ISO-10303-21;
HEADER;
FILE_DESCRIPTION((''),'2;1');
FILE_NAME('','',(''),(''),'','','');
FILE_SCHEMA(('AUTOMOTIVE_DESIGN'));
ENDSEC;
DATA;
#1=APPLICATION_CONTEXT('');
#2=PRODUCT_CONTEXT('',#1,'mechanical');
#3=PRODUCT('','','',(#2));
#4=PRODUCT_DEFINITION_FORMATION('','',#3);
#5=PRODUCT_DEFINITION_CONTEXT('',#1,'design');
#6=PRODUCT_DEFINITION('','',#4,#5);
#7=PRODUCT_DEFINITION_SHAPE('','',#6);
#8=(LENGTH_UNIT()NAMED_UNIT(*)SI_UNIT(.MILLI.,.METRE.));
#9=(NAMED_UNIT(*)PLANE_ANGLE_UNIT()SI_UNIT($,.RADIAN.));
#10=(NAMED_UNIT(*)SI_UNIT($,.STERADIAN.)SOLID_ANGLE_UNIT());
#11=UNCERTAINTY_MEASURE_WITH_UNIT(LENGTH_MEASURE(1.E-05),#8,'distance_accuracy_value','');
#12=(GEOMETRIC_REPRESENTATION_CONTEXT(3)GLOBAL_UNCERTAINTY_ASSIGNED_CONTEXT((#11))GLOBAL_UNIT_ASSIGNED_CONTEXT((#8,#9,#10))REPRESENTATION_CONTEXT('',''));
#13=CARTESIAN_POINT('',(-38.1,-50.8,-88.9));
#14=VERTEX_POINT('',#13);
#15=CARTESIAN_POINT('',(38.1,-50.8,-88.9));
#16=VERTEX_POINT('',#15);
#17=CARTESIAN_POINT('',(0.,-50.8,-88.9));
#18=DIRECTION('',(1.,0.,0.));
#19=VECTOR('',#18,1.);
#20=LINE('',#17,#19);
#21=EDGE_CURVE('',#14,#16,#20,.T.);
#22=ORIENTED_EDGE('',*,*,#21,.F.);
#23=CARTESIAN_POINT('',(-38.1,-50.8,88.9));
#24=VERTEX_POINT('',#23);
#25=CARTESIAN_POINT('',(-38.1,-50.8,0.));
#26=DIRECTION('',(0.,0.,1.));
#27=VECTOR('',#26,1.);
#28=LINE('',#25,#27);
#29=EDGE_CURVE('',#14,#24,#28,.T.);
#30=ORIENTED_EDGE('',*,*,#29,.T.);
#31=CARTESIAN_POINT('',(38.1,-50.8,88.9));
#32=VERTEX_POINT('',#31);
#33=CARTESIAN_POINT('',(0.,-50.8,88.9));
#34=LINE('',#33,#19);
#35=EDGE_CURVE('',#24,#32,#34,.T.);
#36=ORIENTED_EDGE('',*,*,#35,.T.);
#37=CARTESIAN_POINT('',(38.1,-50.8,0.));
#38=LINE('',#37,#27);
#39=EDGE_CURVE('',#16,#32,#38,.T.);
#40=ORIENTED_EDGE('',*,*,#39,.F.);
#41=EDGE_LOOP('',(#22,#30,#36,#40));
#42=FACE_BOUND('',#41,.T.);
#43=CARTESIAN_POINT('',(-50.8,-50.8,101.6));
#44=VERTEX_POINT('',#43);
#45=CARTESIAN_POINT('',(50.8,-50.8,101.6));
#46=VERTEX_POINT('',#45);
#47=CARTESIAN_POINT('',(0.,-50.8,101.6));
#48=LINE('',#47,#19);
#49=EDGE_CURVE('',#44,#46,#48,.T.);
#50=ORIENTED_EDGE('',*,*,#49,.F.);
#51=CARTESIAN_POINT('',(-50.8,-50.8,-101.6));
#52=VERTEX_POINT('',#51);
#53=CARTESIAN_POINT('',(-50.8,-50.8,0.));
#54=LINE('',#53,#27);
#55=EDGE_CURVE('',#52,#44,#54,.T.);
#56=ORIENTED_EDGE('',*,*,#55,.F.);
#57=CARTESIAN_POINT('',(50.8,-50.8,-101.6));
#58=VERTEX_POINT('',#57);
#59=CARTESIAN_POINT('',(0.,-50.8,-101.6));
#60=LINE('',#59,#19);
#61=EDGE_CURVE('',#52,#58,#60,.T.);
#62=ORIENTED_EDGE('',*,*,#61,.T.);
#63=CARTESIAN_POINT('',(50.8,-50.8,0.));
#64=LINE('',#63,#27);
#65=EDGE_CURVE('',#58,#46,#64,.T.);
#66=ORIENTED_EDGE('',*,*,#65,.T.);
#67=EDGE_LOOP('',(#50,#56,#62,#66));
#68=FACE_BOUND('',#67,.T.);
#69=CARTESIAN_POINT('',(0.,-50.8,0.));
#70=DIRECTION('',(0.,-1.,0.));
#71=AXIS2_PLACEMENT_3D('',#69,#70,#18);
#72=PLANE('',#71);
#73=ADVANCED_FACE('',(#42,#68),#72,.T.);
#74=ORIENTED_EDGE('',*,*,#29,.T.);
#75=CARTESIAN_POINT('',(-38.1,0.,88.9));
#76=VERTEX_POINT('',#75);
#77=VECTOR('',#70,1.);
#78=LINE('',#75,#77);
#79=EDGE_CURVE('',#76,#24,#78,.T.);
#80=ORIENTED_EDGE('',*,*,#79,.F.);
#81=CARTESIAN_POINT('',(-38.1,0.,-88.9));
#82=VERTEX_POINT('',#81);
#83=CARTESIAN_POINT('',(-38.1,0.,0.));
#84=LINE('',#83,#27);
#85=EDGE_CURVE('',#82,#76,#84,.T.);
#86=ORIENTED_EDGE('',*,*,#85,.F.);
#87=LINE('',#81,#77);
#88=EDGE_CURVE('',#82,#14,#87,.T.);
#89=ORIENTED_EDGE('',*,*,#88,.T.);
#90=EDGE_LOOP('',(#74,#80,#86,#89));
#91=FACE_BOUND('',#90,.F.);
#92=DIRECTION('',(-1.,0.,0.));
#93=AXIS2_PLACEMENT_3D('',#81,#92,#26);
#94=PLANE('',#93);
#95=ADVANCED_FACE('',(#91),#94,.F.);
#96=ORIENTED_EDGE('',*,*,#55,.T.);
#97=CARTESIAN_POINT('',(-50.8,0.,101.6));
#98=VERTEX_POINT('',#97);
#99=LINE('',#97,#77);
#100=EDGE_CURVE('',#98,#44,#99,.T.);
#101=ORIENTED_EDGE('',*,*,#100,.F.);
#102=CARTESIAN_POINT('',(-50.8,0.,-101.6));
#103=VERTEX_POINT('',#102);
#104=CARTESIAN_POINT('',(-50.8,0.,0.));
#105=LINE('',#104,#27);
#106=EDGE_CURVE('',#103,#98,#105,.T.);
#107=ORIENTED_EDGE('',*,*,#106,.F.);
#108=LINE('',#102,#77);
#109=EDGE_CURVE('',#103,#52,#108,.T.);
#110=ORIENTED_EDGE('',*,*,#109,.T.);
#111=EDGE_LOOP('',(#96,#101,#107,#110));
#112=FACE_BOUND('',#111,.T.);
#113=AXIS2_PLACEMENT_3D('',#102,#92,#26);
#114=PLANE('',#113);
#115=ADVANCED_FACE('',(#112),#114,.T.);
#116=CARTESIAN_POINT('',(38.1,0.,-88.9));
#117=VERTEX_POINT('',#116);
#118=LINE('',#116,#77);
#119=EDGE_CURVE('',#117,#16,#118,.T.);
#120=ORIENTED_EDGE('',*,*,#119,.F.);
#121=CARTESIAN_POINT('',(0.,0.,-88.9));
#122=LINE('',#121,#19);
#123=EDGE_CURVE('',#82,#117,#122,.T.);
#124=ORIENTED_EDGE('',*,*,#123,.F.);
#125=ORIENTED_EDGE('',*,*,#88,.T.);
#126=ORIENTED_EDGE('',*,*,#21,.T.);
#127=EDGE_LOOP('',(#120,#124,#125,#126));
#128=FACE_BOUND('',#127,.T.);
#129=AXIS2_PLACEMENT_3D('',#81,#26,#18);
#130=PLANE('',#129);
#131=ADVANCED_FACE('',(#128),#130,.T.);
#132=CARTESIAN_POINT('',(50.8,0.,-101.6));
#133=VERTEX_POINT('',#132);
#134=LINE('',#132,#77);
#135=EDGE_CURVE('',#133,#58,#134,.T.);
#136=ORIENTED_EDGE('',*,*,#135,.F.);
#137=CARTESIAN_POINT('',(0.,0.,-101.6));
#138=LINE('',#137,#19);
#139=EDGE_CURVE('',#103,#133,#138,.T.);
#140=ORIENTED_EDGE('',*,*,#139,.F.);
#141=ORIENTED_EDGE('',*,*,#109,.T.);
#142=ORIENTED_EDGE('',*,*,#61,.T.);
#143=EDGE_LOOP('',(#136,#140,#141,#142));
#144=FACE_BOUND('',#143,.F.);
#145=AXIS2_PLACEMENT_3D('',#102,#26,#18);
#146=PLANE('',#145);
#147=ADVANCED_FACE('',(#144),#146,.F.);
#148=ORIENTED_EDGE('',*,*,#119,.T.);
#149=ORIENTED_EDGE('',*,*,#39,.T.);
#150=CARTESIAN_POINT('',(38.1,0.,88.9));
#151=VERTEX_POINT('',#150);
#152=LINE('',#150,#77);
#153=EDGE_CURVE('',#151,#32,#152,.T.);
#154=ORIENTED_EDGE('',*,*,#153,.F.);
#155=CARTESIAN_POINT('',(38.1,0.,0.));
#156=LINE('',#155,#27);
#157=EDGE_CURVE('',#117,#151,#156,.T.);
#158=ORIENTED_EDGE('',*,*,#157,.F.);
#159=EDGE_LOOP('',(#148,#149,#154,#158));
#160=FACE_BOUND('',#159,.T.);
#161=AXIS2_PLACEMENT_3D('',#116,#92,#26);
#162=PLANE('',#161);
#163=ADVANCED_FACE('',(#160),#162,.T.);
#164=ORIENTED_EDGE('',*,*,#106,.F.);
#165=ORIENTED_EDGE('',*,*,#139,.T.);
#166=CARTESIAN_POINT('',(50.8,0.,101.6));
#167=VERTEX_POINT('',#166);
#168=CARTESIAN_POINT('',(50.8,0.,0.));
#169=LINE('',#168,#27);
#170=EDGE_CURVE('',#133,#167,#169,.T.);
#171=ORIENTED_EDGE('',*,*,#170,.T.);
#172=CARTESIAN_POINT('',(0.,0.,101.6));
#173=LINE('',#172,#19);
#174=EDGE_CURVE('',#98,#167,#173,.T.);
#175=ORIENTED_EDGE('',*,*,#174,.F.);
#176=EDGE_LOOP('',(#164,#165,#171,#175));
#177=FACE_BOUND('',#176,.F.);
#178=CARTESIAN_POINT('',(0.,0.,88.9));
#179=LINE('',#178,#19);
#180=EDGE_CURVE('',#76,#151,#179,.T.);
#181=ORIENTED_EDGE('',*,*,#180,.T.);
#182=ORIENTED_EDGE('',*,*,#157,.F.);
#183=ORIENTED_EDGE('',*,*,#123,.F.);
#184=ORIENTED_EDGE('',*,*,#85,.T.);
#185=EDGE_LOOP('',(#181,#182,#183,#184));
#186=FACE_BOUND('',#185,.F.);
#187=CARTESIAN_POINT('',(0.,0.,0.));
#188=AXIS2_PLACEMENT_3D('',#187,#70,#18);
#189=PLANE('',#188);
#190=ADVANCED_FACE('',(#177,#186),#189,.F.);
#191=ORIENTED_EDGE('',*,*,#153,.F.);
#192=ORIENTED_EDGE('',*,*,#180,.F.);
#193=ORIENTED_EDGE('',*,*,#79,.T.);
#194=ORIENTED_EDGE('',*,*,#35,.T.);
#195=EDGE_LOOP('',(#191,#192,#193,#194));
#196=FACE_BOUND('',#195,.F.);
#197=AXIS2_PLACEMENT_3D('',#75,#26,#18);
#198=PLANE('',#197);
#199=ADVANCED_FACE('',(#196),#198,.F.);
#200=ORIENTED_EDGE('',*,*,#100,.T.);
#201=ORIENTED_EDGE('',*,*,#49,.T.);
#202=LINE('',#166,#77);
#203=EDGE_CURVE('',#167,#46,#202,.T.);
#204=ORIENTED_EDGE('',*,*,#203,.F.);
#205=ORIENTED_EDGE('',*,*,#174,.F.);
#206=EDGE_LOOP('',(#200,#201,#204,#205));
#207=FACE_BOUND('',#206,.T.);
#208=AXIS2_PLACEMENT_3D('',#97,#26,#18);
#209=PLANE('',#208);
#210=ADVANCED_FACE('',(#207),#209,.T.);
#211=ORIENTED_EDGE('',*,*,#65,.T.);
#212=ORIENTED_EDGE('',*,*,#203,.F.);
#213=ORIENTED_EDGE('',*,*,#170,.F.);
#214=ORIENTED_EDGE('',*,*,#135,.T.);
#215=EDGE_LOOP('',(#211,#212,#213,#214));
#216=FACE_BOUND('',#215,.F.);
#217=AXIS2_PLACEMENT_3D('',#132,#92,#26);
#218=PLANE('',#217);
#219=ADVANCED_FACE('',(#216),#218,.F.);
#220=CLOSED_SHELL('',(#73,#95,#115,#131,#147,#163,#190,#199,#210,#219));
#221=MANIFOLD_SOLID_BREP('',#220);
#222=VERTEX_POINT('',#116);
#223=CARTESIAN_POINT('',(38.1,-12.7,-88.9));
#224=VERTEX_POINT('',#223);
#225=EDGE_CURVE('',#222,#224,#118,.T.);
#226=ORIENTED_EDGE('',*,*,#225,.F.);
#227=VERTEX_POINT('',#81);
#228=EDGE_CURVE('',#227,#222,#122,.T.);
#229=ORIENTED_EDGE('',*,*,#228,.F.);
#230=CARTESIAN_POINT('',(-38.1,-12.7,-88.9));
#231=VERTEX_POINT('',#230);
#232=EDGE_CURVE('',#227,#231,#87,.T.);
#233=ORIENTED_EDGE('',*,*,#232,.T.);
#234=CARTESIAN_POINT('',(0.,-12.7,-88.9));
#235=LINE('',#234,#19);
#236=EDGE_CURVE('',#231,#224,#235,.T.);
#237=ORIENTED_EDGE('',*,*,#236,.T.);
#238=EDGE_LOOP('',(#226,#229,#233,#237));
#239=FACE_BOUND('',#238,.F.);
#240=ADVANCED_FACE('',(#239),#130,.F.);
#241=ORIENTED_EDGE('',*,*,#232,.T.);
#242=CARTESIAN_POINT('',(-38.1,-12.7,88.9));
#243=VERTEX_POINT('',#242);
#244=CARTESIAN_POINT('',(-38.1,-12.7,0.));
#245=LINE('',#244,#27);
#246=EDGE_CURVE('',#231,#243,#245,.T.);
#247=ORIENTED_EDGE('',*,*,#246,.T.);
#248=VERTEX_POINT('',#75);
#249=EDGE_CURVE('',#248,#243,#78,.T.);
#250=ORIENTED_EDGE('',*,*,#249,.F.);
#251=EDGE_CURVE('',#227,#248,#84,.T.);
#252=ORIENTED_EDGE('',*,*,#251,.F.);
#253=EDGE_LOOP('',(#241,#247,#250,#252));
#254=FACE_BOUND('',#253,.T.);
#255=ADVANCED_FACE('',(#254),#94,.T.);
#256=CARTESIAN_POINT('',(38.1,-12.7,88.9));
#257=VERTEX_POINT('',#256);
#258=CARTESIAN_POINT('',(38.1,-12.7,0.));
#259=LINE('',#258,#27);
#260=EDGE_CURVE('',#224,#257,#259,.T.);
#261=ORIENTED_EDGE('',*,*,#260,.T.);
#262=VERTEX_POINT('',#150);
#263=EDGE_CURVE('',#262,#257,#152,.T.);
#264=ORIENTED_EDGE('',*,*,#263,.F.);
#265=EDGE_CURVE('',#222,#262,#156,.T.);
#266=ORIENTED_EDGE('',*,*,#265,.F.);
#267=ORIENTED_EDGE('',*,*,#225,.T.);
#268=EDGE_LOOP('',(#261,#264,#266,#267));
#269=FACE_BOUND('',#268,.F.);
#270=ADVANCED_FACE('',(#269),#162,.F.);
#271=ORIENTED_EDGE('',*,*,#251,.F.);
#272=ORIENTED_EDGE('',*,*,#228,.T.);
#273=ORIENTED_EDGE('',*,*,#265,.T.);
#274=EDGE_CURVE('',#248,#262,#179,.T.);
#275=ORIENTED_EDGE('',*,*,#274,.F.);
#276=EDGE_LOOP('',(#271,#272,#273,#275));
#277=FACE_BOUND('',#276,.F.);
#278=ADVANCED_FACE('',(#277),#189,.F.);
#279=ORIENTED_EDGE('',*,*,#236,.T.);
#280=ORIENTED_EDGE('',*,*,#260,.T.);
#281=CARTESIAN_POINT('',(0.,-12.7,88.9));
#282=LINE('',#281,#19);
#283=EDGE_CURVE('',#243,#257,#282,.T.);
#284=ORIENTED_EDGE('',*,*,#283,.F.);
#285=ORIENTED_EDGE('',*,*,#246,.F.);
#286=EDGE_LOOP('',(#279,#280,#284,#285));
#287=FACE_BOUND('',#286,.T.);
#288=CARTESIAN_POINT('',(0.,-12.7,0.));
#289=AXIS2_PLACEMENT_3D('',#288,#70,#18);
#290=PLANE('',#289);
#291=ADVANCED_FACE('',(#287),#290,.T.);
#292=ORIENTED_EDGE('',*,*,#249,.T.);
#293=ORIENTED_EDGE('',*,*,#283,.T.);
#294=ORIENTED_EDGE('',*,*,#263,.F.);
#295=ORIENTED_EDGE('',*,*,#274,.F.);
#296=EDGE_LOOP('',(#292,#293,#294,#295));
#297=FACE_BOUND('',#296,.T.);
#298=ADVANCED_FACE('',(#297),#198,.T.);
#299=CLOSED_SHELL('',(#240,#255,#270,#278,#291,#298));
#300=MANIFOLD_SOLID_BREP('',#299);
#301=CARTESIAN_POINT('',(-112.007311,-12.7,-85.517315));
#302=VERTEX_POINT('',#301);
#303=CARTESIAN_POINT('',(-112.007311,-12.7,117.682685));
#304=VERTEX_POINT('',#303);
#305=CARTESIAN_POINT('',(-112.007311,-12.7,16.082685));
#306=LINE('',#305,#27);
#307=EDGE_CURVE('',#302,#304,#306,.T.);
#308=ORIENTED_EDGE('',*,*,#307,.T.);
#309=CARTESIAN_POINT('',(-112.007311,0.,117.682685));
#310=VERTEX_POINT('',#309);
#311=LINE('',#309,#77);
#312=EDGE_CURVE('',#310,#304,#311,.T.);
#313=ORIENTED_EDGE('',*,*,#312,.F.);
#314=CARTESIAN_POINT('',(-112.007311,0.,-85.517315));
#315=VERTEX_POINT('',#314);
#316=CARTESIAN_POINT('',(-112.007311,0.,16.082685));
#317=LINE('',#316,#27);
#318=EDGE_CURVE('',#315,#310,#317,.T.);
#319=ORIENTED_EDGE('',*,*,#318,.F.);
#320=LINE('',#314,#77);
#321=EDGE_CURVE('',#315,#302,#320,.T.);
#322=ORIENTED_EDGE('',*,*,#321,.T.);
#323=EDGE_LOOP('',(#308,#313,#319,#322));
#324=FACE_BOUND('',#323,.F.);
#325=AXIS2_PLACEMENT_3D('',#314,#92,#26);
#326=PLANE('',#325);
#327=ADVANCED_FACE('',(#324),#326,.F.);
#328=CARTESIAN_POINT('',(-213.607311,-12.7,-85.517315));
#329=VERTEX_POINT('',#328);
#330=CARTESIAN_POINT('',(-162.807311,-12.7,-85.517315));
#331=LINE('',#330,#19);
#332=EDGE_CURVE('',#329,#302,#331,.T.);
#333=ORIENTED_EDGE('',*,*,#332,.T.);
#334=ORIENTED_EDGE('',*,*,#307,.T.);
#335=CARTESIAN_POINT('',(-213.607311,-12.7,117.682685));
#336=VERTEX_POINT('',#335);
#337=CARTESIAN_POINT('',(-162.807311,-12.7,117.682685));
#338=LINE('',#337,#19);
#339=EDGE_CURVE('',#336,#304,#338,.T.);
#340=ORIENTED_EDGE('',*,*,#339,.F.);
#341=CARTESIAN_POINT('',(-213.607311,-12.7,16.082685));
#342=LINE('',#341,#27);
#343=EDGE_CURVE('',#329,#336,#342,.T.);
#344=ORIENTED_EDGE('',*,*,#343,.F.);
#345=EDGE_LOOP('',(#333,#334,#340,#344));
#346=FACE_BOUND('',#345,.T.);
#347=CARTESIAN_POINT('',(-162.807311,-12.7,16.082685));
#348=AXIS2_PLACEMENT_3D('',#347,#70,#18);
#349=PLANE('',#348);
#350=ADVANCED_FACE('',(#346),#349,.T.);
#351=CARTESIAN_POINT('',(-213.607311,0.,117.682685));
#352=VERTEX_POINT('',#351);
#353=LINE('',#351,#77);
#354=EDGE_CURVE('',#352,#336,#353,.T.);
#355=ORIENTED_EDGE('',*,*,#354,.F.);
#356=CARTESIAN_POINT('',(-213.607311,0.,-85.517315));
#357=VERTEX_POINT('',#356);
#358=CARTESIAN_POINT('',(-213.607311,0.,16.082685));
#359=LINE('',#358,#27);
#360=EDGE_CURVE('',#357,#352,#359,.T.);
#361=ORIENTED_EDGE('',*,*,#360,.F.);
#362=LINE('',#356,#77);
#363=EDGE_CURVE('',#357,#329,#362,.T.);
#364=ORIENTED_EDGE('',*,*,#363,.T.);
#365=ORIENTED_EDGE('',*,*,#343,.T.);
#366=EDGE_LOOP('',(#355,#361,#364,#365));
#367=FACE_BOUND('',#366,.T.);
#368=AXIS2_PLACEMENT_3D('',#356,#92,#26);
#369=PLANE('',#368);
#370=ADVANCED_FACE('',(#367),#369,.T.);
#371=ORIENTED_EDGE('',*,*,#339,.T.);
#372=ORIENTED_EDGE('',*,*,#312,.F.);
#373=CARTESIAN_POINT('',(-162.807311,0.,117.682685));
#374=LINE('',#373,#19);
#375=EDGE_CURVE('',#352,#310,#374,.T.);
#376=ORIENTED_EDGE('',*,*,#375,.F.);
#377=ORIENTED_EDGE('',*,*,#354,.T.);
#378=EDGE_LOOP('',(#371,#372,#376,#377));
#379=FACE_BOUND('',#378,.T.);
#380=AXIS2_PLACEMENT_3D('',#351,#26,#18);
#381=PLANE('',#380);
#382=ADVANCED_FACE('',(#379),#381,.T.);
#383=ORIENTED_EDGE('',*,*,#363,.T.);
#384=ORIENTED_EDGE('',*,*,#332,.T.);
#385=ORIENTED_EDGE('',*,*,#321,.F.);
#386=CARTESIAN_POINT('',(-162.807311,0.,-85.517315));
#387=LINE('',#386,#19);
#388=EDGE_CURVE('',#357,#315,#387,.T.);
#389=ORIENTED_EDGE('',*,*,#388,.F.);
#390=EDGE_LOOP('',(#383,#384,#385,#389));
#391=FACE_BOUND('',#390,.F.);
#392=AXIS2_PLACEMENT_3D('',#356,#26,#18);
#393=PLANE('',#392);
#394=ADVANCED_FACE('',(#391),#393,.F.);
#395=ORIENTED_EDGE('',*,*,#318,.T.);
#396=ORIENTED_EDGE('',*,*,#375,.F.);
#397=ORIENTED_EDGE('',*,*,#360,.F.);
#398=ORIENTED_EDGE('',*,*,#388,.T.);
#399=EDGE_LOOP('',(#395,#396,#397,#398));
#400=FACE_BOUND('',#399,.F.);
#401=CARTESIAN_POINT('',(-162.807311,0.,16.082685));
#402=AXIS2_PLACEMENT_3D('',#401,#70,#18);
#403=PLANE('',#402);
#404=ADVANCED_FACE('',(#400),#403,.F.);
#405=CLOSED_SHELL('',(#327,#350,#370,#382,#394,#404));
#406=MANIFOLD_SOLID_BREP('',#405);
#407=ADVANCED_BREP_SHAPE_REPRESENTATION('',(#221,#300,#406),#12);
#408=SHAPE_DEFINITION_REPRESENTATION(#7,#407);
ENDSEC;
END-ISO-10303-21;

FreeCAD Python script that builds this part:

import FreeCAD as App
import Part
import Sketcher
Q = App.Units.Quantity

doc = App.newDocument("Part")
params = doc.addObject("Spreadsheet::Sheet", "Params")
for row, (alias, value) in enumerate([
    ("sketch1_width", "4 in"),
    ("sketch1_width2", "3 in"),
    ("sketch1_height", "8 in"),
    ("sketch1_height2", "7 in"),
    ("pad1_length", "2 in"),
    ("sketch2_width", "3 in"),
    ("sketch2_height", "7 in"),
    ("pad2_length", "0.5 in"),
    ("sketch3_width", "4 in"),
    ("sketch3_height", "8 in"),
    ("pad3_length", "0.5 in"),
], start=1):
    params.set(f"A{row}", alias)
    params.set(f"B{row}", "=" + value)
    params.setAlias(f"B{row}", alias)

body = doc.addObject("PartDesign::Body", "Body")

# Sketch on XZ plane
sketch1 = body.newObject("Sketcher::SketchObject", "Sketch")
sketch1.AttachmentSupport = (doc.getObject("XZ_Plane"), [""])
sketch1.MapMode = "FlatFace"
sketch1.addGeometry(Part.LineSegment(App.Vector(-51, 102, 0), App.Vector(-51, -102, 0)), False)
sketch1.addGeometry(Part.LineSegment(App.Vector(-51, -102, 0), App.Vector(51, -102, 0)), False)
sketch1.addGeometry(Part.LineSegment(App.Vector(51, -102, 0), App.Vector(51, 102, 0)), False)
sketch1.addGeometry(Part.LineSegment(App.Vector(51, 102, 0), App.Vector(-51, 102, 0)), False)
sketch1.addGeometry(Part.LineSegment(App.Vector(38, -89, 0), App.Vector(-38, -89, 0)), False)
sketch1.addGeometry(Part.LineSegment(App.Vector(-38, -89, 0), App.Vector(-38, 89, 0)), False)
sketch1.addGeometry(Part.LineSegment(App.Vector(-38, 89, 0), App.Vector(38, 89, 0)), False)
sketch1.addGeometry(Part.LineSegment(App.Vector(38, 89, 0), App.Vector(38, -89, 0)), False)
sketch1.addConstraint(Sketcher.Constraint("Coincident", 0, 2, 1, 1))
sketch1.addConstraint(Sketcher.Constraint("Coincident", 1, 2, 2, 1))
sketch1.addConstraint(Sketcher.Constraint("Coincident", 2, 2, 3, 1))
sketch1.addConstraint(Sketcher.Constraint("Coincident", 3, 2, 0, 1))
sketch1.addConstraint(Sketcher.Constraint("Coincident", 4, 2, 5, 1))
sketch1.addConstraint(Sketcher.Constraint("Coincident", 5, 2, 6, 1))
sketch1.addConstraint(Sketcher.Constraint("Coincident", 6, 2, 7, 1))
sketch1.addConstraint(Sketcher.Constraint("Coincident", 7, 2, 4, 1))
sketch1.addConstraint(Sketcher.Constraint("Vertical", 0))
sketch1.addConstraint(Sketcher.Constraint("Horizontal", 1))
sketch1.addConstraint(Sketcher.Constraint("Vertical", 2))
sketch1.addConstraint(Sketcher.Constraint("Horizontal", 3))
sketch1.addConstraint(Sketcher.Constraint("Horizontal", 4))
sketch1.addConstraint(Sketcher.Constraint("Vertical", 5))
sketch1.addConstraint(Sketcher.Constraint("Horizontal", 6))
sketch1.addConstraint(Sketcher.Constraint("Vertical", 7))
sketch1.addConstraint(Sketcher.Constraint("Symmetric", 0, 2, 2, 2, -1, 1))
sketch1.addConstraint(Sketcher.Constraint("Symmetric", 4, 2, 6, 2, -1, 1))
sketch1.addConstraint(Sketcher.Constraint("DistanceX", 1, 1, 1, 2, Q("4 in")))
sketch1.addConstraint(Sketcher.Constraint("DistanceX", 4, 2, 4, 1, Q("3 in")))
sketch1.addConstraint(Sketcher.Constraint("DistanceY", 0, 2, 0, 1, Q("8 in")))
sketch1.addConstraint(Sketcher.Constraint("DistanceY", 5, 1, 5, 2, Q("7 in")))
sketch1.setExpression("Constraints[18]", "Params.sketch1_width")
sketch1.setExpression("Constraints[19]", "Params.sketch1_width2")
sketch1.setExpression("Constraints[20]", "Params.sketch1_height")
sketch1.setExpression("Constraints[21]", "Params.sketch1_height2")
pad1 = body.newObject("PartDesign::Pad", "Pad")
pad1.Profile = sketch1
pad1.setExpression("Length", "Params.pad1_length")
body2 = doc.addObject("PartDesign::Body", "Body001")

# Sketch on XZ plane
sketch2 = body2.newObject("Sketcher::SketchObject", "Sketch001")
sketch2.AttachmentSupport = (doc.getObject("XZ_Plane001"), [""])
sketch2.MapMode = "FlatFace"
sketch2.addGeometry(Part.LineSegment(App.Vector(-38, 89, 0), App.Vector(-38, -89, 0)), False)
sketch2.addGeometry(Part.LineSegment(App.Vector(-38, -89, 0), App.Vector(38, -89, 0)), False)
sketch2.addGeometry(Part.LineSegment(App.Vector(38, -89, 0), App.Vector(38, 89, 0)), False)
sketch2.addGeometry(Part.LineSegment(App.Vector(38, 89, 0), App.Vector(-38, 89, 0)), False)
sketch2.addConstraint(Sketcher.Constraint("Coincident", 0, 2, 1, 1))
sketch2.addConstraint(Sketcher.Constraint("Coincident", 1, 2, 2, 1))
sketch2.addConstraint(Sketcher.Constraint("Coincident", 2, 2, 3, 1))
sketch2.addConstraint(Sketcher.Constraint("Coincident", 3, 2, 0, 1))
sketch2.addConstraint(Sketcher.Constraint("Vertical", 0))
sketch2.addConstraint(Sketcher.Constraint("Horizontal", 1))
sketch2.addConstraint(Sketcher.Constraint("Vertical", 2))
sketch2.addConstraint(Sketcher.Constraint("Horizontal", 3))
sketch2.addConstraint(Sketcher.Constraint("Symmetric", 0, 2, 2, 2, -1, 1))
sketch2.addConstraint(Sketcher.Constraint("DistanceX", 1, 1, 1, 2, Q("3 in")))
sketch2.addConstraint(Sketcher.Constraint("DistanceY", 0, 2, 0, 1, Q("7 in")))
sketch2.setExpression("Constraints[9]", "Params.sketch2_width")
sketch2.setExpression("Constraints[10]", "Params.sketch2_height")
pad2 = body2.newObject("PartDesign::Pad", "Pad001")
pad2.Profile = sketch2
pad2.setExpression("Length", "Params.pad2_length")
body3 = doc.addObject("PartDesign::Body", "Body002")

# Sketch on XZ plane
sketch3 = body3.newObject("Sketcher::SketchObject", "Sketch002")
sketch3.AttachmentSupport = (doc.getObject("XZ_Plane002"), [""])
sketch3.MapMode = "FlatFace"
sketch3.addGeometry(Part.LineSegment(App.Vector(-214, 118, 0), App.Vector(-214, -86, 0)), False)
sketch3.addGeometry(Part.LineSegment(App.Vector(-214, -86, 0), App.Vector(-112, -86, 0)), False)
sketch3.addGeometry(Part.LineSegment(App.Vector(-112, -86, 0), App.Vector(-112, 118, 0)), False)
sketch3.addGeometry(Part.LineSegment(App.Vector(-112, 118, 0), App.Vector(-214, 118, 0)), False)
sketch3.addConstraint(Sketcher.Constraint("Coincident", 0, 2, 1, 1))
sketch3.addConstraint(Sketcher.Constraint("Coincident", 1, 2, 2, 1))
sketch3.addConstraint(Sketcher.Constraint("Coincident", 2, 2, 3, 1))
sketch3.addConstraint(Sketcher.Constraint("Coincident", 3, 2, 0, 1))
sketch3.addConstraint(Sketcher.Constraint("Vertical", 0))
sketch3.addConstraint(Sketcher.Constraint("Horizontal", 1))
sketch3.addConstraint(Sketcher.Constraint("Vertical", 2))
sketch3.addConstraint(Sketcher.Constraint("Horizontal", 3))
sketch3.addConstraint(Sketcher.Constraint("DistanceX", 1, 1, 1, 2, Q("4 in")))
sketch3.addConstraint(Sketcher.Constraint("DistanceY", 0, 2, 0, 1, Q("8 in")))
sketch3.addConstraint(Sketcher.Constraint("DistanceX", 0, 2, -1, 1, 213.607311))
sketch3.addConstraint(Sketcher.Constraint("DistanceY", 0, 2, -1, 1, 85.517315))
sketch3.setExpression("Constraints[8]", "Params.sketch3_width")
sketch3.setExpression("Constraints[9]", "Params.sketch3_height")
pad3 = body3.newObject("PartDesign::Pad", "Pad002")
pad3.Profile = sketch3
pad3.setExpression("Length", "Params.pad3_length")

doc.recompute()
